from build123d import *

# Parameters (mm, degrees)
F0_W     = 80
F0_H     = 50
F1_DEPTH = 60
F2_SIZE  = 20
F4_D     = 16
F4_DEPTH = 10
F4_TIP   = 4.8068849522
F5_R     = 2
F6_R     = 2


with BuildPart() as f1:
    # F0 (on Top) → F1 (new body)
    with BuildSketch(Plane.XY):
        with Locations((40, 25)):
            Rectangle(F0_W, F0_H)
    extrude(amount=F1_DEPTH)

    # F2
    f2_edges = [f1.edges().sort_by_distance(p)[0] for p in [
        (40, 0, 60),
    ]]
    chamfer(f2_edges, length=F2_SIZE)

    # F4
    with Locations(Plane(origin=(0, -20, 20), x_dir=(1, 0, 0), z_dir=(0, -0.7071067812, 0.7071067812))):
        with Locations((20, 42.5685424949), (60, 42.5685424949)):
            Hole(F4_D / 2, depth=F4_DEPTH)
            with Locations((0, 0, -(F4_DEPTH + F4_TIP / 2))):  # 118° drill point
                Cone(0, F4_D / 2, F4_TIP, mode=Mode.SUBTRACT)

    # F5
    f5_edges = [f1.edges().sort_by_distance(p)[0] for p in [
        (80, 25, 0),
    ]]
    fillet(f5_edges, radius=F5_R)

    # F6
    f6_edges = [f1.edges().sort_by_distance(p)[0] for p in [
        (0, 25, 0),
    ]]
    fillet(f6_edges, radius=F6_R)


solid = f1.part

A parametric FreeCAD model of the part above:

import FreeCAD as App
import Part
import Sketcher


def edges_at(feature, points):
    """Names of the edges that pass closest to the given points."""
    edges = feature.Shape.Edges
    near = lambda p: min(range(len(edges)), key=lambda i: edges[i].distToShape(Part.Vertex(*p))[0])
    return sorted({f"Edge{near(p) + 1}" for p in points})


def add_polygon(sketch, points):
    """Adds a closed chain of lines whose ends are joined by coincident constraints."""
    first, n = sketch.GeometryCount, len(points)
    for a, b in zip(points, points[1:] + points[:1]):
        sketch.addGeometry(Part.LineSegment(App.Vector(*a, 0), App.Vector(*b, 0)), False)
    for i in range(n):
        sketch.addConstraint(Sketcher.Constraint("Coincident", first + i, 2, first + (i + 1) % n, 1))

doc = App.newDocument("Part")
body = doc.addObject("PartDesign::Body", "Body")

sketch1 = body.newObject("Sketcher::SketchObject", "Sketch")
sketch1.AttachmentSupport = (doc.getObject("XY_Plane"), [""])
sketch1.MapMode = "FlatFace"
add_polygon(sketch1, [(0, 50), (0, 0), (80, 0), (80, 50)])
sketch1.addConstraint(Sketcher.Constraint("Vertical", 0))
sketch1.addConstraint(Sketcher.Constraint("Horizontal", 1))
sketch1.addConstraint(Sketcher.Constraint("Vertical", 2))
sketch1.addConstraint(Sketcher.Constraint("Horizontal", 3))
sketch1.addConstraint(Sketcher.Constraint("Coincident", 0, 2, -1, 1))
sketch1.addConstraint(Sketcher.Constraint("DistanceX", 1, 1, 1, 2, 80.0))
sketch1.addConstraint(Sketcher.Constraint("DistanceY", 0, 2, 0, 1, 50.0))
pad1 = body.newObject("PartDesign::Pad", "Pad")
pad1.Profile = sketch1
pad1.Length = 60
doc.recompute()

chamfer = body.newObject("PartDesign::Chamfer", "Chamfer")
chamfer.Base = (pad1, edges_at(pad1, [(40, 0, 60)]))
chamfer.Size = 20

sketch2 = body.newObject("Sketcher::SketchObject", "Sketch001")
sketch2.Placement = App.Placement(App.Vector(0, -20, 20), App.Rotation(App.Vector(1, 0, 0), App.Vector(0, 0.707106781, 0.707106781), App.Vector(0, -0.707106781, 0.707106781), "ZXY"))
sketch2.addGeometry(Part.Circle(App.Vector(20, 43, 0), App.Vector(0, 0, 1), 8), False)
sketch2.addGeometry(Part.Circle(App.Vector(60, 43, 0), App.Vector(0, 0, 1), 8), False)
sketch2.addConstraint(Sketcher.Constraint("Equal", 0, 1))
sketch2.addConstraint(Sketcher.Constraint("Horizontal", 0, 3, 1, 3))
sketch2.addConstraint(Sketcher.Constraint("Diameter", 0, 16.0))
sketch2.addConstraint(Sketcher.Constraint("DistanceX", -1, 1, 0, 3, 20.0))
sketch2.addConstraint(Sketcher.Constraint("DistanceX", -1, 1, 1, 3, 60.0))
sketch2.addConstraint(Sketcher.Constraint("DistanceY", -1, 1, 0, 3, 42.568542))
doc.recompute()
hole = body.newObject("PartDesign::Hole", "Hole")
hole.Profile = sketch2
hole.ThreadType = "None"
hole.Diameter = 16
hole.DepthType = "Dimension"
hole.Depth = 10
hole.DrillPoint = "Angled"
hole.DrillPointAngle = 118
doc.recompute()

fillet = body.newObject("PartDesign::Fillet", "Fillet")
fillet.Base = (hole, edges_at(hole, [(80, 25, 0)]))
fillet.Radius = 2
doc.recompute()

fillet2 = body.newObject("PartDesign::Fillet", "Fillet001")
fillet2.Base = (fillet, edges_at(fillet, [(0, 25, 0)]))
fillet2.Radius = 2

doc.recompute()
